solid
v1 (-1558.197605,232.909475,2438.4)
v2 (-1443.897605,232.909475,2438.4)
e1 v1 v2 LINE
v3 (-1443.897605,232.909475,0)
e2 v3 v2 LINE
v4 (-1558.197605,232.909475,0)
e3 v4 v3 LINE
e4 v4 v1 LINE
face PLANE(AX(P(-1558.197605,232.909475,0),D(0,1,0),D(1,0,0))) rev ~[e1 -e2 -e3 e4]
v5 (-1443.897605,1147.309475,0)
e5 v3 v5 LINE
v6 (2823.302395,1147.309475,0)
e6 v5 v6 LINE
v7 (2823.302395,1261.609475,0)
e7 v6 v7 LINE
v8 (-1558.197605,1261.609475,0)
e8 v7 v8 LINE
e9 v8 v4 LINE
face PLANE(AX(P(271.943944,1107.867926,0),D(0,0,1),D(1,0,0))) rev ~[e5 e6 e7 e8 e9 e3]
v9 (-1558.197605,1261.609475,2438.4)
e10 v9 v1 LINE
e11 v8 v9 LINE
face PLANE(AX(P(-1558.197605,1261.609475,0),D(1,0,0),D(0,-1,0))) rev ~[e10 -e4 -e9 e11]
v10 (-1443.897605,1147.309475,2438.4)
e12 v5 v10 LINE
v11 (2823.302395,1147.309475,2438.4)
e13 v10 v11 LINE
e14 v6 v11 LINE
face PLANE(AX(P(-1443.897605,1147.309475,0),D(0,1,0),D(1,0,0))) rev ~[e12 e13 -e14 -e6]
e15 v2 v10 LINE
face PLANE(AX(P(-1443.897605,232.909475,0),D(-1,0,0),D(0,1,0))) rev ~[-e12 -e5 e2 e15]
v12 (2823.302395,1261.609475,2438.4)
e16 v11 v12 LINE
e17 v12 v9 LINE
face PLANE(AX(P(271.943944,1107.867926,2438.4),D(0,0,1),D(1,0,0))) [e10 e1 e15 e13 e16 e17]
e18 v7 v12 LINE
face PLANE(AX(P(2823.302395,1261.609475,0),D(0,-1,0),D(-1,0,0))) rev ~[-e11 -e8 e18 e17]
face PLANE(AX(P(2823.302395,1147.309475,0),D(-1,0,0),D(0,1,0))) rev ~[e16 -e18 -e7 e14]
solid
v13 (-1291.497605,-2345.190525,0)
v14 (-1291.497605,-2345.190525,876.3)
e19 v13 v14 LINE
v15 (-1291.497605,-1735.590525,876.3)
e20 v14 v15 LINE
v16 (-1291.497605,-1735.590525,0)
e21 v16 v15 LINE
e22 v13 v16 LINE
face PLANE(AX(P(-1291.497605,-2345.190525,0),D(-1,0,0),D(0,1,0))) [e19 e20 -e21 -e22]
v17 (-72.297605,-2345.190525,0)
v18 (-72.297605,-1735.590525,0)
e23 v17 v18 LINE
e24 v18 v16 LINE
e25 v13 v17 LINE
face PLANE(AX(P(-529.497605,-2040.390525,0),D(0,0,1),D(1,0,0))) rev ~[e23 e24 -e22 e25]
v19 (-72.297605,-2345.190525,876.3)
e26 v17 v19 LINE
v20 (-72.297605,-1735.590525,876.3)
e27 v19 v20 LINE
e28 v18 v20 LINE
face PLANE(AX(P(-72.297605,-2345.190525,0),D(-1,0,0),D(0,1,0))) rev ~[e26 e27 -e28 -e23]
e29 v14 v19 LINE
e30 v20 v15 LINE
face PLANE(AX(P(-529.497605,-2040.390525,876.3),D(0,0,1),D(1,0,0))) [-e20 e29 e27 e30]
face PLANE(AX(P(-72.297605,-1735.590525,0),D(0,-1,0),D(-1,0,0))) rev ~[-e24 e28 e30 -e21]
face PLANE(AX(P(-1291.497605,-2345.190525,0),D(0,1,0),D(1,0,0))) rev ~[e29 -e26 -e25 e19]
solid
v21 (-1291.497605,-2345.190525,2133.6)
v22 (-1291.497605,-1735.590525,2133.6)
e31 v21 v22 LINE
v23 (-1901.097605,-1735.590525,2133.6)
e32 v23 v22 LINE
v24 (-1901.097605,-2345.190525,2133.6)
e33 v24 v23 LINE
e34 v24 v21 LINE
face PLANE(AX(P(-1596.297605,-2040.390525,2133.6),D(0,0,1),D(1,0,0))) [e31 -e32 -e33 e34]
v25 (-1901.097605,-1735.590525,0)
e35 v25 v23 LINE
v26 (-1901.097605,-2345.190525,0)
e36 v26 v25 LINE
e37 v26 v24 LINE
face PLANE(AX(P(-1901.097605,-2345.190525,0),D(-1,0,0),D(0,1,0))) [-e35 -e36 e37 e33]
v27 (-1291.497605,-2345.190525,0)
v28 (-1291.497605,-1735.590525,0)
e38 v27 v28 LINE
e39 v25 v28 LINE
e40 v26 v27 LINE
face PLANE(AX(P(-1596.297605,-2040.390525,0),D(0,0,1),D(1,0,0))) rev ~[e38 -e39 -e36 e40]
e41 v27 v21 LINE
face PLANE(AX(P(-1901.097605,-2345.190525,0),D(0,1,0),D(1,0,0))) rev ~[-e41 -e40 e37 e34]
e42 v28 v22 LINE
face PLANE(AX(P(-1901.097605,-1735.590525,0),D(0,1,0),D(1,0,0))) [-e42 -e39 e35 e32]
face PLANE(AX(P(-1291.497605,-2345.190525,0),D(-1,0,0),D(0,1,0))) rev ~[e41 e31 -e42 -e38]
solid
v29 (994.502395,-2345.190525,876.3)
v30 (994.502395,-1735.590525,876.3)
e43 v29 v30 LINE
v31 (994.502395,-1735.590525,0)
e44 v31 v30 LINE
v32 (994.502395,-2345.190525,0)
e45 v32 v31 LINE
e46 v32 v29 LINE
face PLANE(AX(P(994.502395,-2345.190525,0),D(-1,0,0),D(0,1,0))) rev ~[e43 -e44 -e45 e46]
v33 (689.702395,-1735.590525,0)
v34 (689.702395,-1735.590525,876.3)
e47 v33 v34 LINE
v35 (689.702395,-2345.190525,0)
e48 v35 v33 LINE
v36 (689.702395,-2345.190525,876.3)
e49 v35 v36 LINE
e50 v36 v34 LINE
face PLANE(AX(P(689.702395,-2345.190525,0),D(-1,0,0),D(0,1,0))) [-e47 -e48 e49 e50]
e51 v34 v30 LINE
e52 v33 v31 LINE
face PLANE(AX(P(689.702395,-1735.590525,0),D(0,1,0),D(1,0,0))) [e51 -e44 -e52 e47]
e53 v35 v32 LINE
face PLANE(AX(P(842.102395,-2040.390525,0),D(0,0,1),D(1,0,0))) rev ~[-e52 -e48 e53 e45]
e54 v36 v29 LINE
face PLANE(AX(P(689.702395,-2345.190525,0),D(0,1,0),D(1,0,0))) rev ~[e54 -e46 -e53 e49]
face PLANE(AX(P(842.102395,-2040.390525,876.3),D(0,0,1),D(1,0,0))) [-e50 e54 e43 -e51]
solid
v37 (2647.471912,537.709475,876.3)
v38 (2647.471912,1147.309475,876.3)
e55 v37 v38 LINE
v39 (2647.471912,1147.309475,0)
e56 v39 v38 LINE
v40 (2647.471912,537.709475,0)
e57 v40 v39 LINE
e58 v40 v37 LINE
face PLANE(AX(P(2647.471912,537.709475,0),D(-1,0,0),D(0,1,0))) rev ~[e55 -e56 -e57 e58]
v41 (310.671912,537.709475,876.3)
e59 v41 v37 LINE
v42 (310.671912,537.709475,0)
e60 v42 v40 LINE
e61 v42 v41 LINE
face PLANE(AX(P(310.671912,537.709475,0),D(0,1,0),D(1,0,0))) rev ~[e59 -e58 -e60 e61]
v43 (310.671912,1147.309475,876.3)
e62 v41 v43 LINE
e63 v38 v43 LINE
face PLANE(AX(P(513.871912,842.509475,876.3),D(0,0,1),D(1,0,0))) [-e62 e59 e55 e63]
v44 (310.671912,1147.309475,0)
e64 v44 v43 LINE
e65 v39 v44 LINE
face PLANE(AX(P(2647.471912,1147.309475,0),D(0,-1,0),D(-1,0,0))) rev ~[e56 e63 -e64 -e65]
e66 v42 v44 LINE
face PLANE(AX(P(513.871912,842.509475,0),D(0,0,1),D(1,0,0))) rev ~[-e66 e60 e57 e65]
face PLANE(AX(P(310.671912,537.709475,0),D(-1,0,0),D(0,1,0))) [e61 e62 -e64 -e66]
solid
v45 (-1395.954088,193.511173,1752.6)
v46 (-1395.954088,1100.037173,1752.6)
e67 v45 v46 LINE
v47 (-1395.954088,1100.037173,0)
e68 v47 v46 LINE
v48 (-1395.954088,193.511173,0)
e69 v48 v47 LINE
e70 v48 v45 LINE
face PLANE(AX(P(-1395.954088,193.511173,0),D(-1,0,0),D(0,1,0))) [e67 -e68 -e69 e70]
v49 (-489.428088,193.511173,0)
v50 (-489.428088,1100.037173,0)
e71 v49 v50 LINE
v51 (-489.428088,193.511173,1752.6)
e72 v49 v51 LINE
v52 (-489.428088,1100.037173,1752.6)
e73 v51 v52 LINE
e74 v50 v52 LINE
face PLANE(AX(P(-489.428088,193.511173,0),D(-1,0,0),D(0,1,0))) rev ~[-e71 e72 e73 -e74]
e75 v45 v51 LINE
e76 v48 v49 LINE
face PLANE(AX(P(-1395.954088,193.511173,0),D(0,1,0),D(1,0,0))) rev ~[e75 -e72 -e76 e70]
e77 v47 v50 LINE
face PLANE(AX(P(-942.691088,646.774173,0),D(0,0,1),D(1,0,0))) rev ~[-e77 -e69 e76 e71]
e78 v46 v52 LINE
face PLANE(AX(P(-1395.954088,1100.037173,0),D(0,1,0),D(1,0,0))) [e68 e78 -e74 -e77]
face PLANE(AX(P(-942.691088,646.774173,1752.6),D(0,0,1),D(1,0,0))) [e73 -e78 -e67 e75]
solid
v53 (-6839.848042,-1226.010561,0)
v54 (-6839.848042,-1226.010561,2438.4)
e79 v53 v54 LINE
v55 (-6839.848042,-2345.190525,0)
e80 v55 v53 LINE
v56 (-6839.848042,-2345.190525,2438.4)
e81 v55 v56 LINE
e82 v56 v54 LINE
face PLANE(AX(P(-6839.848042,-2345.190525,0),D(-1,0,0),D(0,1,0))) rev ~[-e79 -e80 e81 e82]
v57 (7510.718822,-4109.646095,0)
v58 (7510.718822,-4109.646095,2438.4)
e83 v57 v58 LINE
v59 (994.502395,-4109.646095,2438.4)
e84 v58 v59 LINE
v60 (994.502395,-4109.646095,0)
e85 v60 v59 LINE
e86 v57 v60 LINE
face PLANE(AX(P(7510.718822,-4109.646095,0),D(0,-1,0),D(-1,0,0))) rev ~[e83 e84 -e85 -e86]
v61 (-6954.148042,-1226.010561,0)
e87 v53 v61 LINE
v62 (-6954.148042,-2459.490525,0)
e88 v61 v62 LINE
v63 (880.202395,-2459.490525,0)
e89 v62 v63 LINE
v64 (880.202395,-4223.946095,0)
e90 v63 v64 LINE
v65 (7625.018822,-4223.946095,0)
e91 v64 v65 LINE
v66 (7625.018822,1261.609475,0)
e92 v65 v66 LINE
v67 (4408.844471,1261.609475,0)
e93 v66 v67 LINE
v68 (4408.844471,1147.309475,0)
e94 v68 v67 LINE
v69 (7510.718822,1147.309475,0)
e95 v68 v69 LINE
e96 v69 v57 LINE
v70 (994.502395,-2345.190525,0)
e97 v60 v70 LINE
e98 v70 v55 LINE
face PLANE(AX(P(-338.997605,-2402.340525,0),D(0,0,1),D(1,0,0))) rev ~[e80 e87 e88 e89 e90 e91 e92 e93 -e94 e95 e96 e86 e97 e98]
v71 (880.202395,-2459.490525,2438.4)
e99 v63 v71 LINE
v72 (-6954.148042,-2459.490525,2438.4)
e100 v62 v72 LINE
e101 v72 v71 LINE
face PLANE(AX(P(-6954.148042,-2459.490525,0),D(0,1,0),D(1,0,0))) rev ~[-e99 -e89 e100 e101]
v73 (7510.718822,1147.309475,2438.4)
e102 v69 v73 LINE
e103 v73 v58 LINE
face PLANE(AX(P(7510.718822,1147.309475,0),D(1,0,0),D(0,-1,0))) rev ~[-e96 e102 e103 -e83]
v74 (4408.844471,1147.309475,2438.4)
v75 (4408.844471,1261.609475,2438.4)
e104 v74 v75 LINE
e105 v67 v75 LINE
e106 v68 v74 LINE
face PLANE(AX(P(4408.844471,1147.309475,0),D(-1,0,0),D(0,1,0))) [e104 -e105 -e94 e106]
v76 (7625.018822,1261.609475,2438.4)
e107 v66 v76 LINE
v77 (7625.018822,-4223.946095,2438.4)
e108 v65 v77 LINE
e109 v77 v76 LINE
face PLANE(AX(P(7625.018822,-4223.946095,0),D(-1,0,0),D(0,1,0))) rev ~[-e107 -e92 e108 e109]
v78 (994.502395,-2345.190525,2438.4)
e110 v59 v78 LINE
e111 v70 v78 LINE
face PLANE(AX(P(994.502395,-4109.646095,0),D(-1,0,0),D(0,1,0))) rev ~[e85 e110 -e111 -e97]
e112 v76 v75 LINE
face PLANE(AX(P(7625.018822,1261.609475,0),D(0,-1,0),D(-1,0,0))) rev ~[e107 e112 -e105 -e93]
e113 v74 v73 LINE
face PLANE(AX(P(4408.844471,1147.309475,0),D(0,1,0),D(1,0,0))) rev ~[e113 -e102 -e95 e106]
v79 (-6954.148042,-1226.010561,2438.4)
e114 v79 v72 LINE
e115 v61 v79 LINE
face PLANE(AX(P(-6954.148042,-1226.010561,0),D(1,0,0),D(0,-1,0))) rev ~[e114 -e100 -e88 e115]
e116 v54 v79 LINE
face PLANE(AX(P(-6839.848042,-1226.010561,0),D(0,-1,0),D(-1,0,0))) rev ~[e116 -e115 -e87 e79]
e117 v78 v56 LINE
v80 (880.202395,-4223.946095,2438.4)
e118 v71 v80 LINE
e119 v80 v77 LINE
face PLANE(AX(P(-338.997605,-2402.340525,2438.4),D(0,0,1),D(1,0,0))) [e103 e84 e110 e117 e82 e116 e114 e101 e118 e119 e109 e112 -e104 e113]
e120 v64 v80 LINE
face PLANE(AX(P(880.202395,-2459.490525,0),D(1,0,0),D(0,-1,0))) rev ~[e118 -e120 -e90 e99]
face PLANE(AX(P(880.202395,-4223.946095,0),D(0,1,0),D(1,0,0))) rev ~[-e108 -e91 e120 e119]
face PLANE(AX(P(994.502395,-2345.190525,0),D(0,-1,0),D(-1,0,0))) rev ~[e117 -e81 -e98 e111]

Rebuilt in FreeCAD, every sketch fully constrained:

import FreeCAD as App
import Part
import Sketcher

V = App.Vector
Q = App.Units.Quantity


def add_polygon(sketch, points):
    """Adds a closed chain of lines whose ends are joined by coincident constraints."""
    first, n = sketch.GeometryCount, len(points)
    for a, b in zip(points, points[1:] + points[:1]):
        sketch.addGeometry(Part.LineSegment(App.Vector(*a, 0), App.Vector(*b, 0)), False)
    for i in range(n):
        sketch.addConstraint(Sketcher.Constraint("Coincident", first + i, 2, first + (i + 1) % n, 1))

doc = App.newDocument("Part")
body = doc.addObject("PartDesign::Body", "Body")

# Sketch on XY plane
sketch1 = body.newObject("Sketcher::SketchObject", "Sketch")
sketch1.AttachmentSupport = (doc.getObject("XY_Plane"), [""])
sketch1.MapMode = "FlatFace"
add_polygon(sketch1, [(-1558.197605, 1261.609475), (-1558.197605, 232.909475), (-1443.897605, 232.909475), (-1443.897605, 1147.309475), (2823.302395, 1147.309475), (2823.302395, 1261.609475)])  # lines 0-5
sketch1.addConstraint([
    Sketcher.Constraint("Vertical", 0),
    Sketcher.Constraint("Horizontal", 1),
    Sketcher.Constraint("Vertical", 2),
    Sketcher.Constraint("Horizontal", 3),
    Sketcher.Constraint("Vertical", 4),
    Sketcher.Constraint("Horizontal", 5),
    Sketcher.Constraint("Equal", 1, 4),
    Sketcher.Constraint("DistanceX", 3, 1, 3, 2, Q("168 in")),
    Sketcher.Constraint("DistanceY", 2, 1, 2, 2, Q("36 in")),
    Sketcher.Constraint("DistanceX", 1, 1, 1, 2, Q("4.5 in")),
    Sketcher.Constraint("DistanceX", 0, 2, -1, 1, 1558.197605),
    Sketcher.Constraint("DistanceY", -1, 1, 0, 2, 232.909475),
])
pad1 = body.newObject("PartDesign::Pad", "Pad")
pad1.Profile = sketch1
pad1.Length = Q("96 in")
body2 = doc.addObject("PartDesign::Body", "Body001")

# Sketch on XY plane
sketch2 = body2.newObject("Sketcher::SketchObject", "Sketch001")
sketch2.AttachmentSupport = (doc.getObject("XY_Plane001"), [""])
sketch2.MapMode = "FlatFace"
add_polygon(sketch2, [(994.502395, -2345.190525), (-6839.848042, -2345.190525), (-6839.848042, -1226.010561), (-6954.148042, -1226.010561), (-6954.148042, -2459.490525), (880.202395, -2459.490525), (880.202395, -4223.946095), (7625.018822, -4223.946095), (7625.018822, 1261.609475), (4408.844471, 1261.609475), (4408.844471, 1147.309475), (7510.718822, 1147.309475), (7510.718822, -4109.646095), (994.502395, -4109.646095)])  # lines 0-13
sketch2.addConstraint([
    Sketcher.Constraint("Horizontal", 0),
    Sketcher.Constraint("Vertical", 1),
    Sketcher.Constraint("Horizontal", 2),
    Sketcher.Constraint("Vertical", 3),
    Sketcher.Constraint("Horizontal", 4),
    Sketcher.Constraint("Vertical", 5),
    Sketcher.Constraint("Horizontal", 6),
    Sketcher.Constraint("Vertical", 7),
    Sketcher.Constraint("Horizontal", 8),
    Sketcher.Constraint("Vertical", 9),
    Sketcher.Constraint("Horizontal", 10),
    Sketcher.Constraint("Vertical", 11),
    Sketcher.Constraint("Horizontal", 12),
    Sketcher.Constraint("Vertical", 13),
    Sketcher.Constraint("Equal", 0, 4),
    Sketcher.Constraint("Equal", 2, 9),
    Sketcher.Constraint("Equal", 5, 13),
    Sketcher.Constraint("DistanceX", 2, 2, 2, 1, Q("4.5 in")),
    Sketcher.Constraint("DistanceY", 4, 2, 9, 2, Q("142 in")),
    Sketcher.Constraint("DistanceY", 13, 2, 8, 2, Q("142 in")),
    Sketcher.Constraint("DistanceX", 10, 2, 7, 2, Q("4.5 in")),
    Sketcher.Constraint("DistanceX", 8, 2, 8, 1, 3216.174352),
    Sketcher.Constraint("DistanceY", 5, 2, 5, 1, 1764.455569),
    Sketcher.Constraint("DistanceX", 0, 2, 0, 1, 7834.350437),
    Sketcher.Constraint("DistanceX", 6, 1, 6, 2, 6744.816427),
    Sketcher.Constraint("DistanceY", 1, 1, 1, 2, 1119.179964),
    Sketcher.Constraint("DistanceX", 0, 2, -1, 1, 6839.848042),
    Sketcher.Constraint("DistanceY", 1, 2, -1, 1, 1226.010561),
])
pad2 = body2.newObject("PartDesign::Pad", "Pad001")
pad2.Profile = sketch2
pad2.Length = Q("96 in")
body3 = doc.addObject("PartDesign::Body", "Body002")

# Sketch on XY plane
sketch3 = body3.newObject("Sketcher::SketchObject", "Sketch002")
sketch3.AttachmentSupport = (doc.getObject("XY_Plane002"), [""])
sketch3.MapMode = "FlatFace"
add_polygon(sketch3, [(-1395.954088, 1100.037173), (-1395.954088, 193.511173), (-489.428088, 193.511173), (-489.428088, 1100.037173)])  # lines 0-3
sketch3.addConstraint([
    Sketcher.Constraint("Vertical", 0),
    Sketcher.Constraint("Horizontal", 1),
    Sketcher.Constraint("Vertical", 2),
    Sketcher.Constraint("Horizontal", 3),
    Sketcher.Constraint("Equal", 3, 0),
    Sketcher.Constraint("DistanceX", 1, 1, 1, 2, Q("35.69 in")),
    Sketcher.Constraint("DistanceX", 0, 2, -1, 1, 1395.954088),
    Sketcher.Constraint("DistanceY", -1, 1, 0, 2, 193.511173),
])
pad3 = body3.newObject("PartDesign::Pad", "Pad002")
pad3.Profile = sketch3
pad3.Length = Q("69 in")
body4 = doc.addObject("PartDesign::Body", "Body003")

# Sketch on XY plane
sketch4 = body4.newObject("Sketcher::SketchObject", "Sketch003")
sketch4.AttachmentSupport = (doc.getObject("XY_Plane003"), [""])
sketch4.MapMode = "FlatFace"
add_polygon(sketch4, [(-72.297605, -2345.190525), (-72.297605, -1735.590525), (-1291.497605, -1735.590525), (-1291.497605, -2345.190525)])  # lines 0-3
sketch4.addConstraint([
    Sketcher.Constraint("Vertical", 0),
    Sketcher.Constraint("Horizontal", 1),
    Sketcher.Constraint("Vertical", 2),
    Sketcher.Constraint("Horizontal", 3),
    Sketcher.Constraint("DistanceX", 1, 2, 1, 1, Q("48 in")),
    Sketcher.Constraint("DistanceY", 0, 1, 0, 2, Q("24 in")),
    Sketcher.Constraint("DistanceX", 0, 2, -1, 1, 72.297605),
    Sketcher.Constraint("DistanceY", 0, 2, -1, 1, 1735.590525),
])
pad4 = body4.newObject("PartDesign::Pad", "Pad003")
pad4.Profile = sketch4
pad4.Length = Q("34.5 in")
body5 = doc.addObject("PartDesign::Body", "Body004")

# Sketch on XY plane
sketch5 = body5.newObject("Sketcher::SketchObject", "Sketch004")
sketch5.AttachmentSupport = (doc.getObject("XY_Plane004"), [""])
sketch5.MapMode = "FlatFace"
add_polygon(sketch5, [(689.702395, -1735.590525), (689.702395, -2345.190525), (994.502395, -2345.190525), (994.502395, -1735.590525)])  # lines 0-3
sketch5.addConstraint([
    Sketcher.Constraint("Vertical", 0),
    Sketcher.Constraint("Horizontal", 1),
    Sketcher.Constraint("Vertical", 2),
    Sketcher.Constraint("Horizontal", 3),
    Sketcher.Constraint("DistanceX", 1, 1, 1, 2, Q("12 in")),
    Sketcher.Constraint("DistanceY", 0, 2, 0, 1, Q("24 in")),
    Sketcher.Constraint("DistanceX", -1, 1, 0, 2, 689.702395),
    Sketcher.Constraint("DistanceY", 0, 2, -1, 1, 2345.190525),
])
pad5 = body5.newObject("PartDesign::Pad", "Pad004")
pad5.Profile = sketch5
pad5.Length = Q("34.5 in")
body6 = doc.addObject("PartDesign::Body", "Body005")

# Sketch on XY plane
sketch6 = body6.newObject("Sketcher::SketchObject", "Sketch005")
sketch6.AttachmentSupport = (doc.getObject("XY_Plane005"), [""])
sketch6.MapMode = "FlatFace"
add_polygon(sketch6, [(310.671912, 1147.309475), (310.671912, 537.709475), (2647.471912, 537.709475), (2647.471912, 1147.309475)])  # lines 0-3
sketch6.addConstraint([
    Sketcher.Constraint("Vertical", 0),
    Sketcher.Constraint("Horizontal", 1),
    Sketcher.Constraint("Vertical", 2),
    Sketcher.Constraint("Horizontal", 3),
    Sketcher.Constraint("DistanceX", 1, 1, 1, 2, Q("92 in")),
    Sketcher.Constraint("DistanceY", 0, 2, 0, 1, Q("24 in")),
    Sketcher.Constraint("DistanceX", -1, 1, 0, 2, 310.671912),
    Sketcher.Constraint("DistanceY", -1, 1, 0, 2, 537.709475),
])
pad6 = body6.newObject("PartDesign::Pad", "Pad005")
pad6.Profile = sketch6
pad6.Length = Q("34.5 in")
body7 = doc.addObject("PartDesign::Body", "Body006")

# Sketch on XY plane
sketch7 = body7.newObject("Sketcher::SketchObject", "Sketch006")
sketch7.AttachmentSupport = (doc.getObject("XY_Plane006"), [""])
sketch7.MapMode = "FlatFace"
add_polygon(sketch7, [(-1901.097605, -1735.590525), (-1901.097605, -2345.190525), (-1291.497605, -2345.190525), (-1291.497605, -1735.590525)])  # lines 0-3
sketch7.addConstraint([
    Sketcher.Constraint("Vertical", 0),
    Sketcher.Constraint("Horizontal", 1),
    Sketcher.Constraint("Vertical", 2),
    Sketcher.Constraint("Horizontal", 3),
    Sketcher.Constraint("Equal", 3, 0),
    Sketcher.Constraint("DistanceX", 1, 1, 1, 2, Q("24 in")),
    Sketcher.Constraint("DistanceX", 0, 2, -1, 1, 1901.097605),
    Sketcher.Constraint("DistanceY", 0, 2, -1, 1, 2345.190525),
])
pad7 = body7.newObject("PartDesign::Pad", "Pad006")
pad7.Profile = sketch7
pad7.Length = Q("84 in")

doc.recompute()
